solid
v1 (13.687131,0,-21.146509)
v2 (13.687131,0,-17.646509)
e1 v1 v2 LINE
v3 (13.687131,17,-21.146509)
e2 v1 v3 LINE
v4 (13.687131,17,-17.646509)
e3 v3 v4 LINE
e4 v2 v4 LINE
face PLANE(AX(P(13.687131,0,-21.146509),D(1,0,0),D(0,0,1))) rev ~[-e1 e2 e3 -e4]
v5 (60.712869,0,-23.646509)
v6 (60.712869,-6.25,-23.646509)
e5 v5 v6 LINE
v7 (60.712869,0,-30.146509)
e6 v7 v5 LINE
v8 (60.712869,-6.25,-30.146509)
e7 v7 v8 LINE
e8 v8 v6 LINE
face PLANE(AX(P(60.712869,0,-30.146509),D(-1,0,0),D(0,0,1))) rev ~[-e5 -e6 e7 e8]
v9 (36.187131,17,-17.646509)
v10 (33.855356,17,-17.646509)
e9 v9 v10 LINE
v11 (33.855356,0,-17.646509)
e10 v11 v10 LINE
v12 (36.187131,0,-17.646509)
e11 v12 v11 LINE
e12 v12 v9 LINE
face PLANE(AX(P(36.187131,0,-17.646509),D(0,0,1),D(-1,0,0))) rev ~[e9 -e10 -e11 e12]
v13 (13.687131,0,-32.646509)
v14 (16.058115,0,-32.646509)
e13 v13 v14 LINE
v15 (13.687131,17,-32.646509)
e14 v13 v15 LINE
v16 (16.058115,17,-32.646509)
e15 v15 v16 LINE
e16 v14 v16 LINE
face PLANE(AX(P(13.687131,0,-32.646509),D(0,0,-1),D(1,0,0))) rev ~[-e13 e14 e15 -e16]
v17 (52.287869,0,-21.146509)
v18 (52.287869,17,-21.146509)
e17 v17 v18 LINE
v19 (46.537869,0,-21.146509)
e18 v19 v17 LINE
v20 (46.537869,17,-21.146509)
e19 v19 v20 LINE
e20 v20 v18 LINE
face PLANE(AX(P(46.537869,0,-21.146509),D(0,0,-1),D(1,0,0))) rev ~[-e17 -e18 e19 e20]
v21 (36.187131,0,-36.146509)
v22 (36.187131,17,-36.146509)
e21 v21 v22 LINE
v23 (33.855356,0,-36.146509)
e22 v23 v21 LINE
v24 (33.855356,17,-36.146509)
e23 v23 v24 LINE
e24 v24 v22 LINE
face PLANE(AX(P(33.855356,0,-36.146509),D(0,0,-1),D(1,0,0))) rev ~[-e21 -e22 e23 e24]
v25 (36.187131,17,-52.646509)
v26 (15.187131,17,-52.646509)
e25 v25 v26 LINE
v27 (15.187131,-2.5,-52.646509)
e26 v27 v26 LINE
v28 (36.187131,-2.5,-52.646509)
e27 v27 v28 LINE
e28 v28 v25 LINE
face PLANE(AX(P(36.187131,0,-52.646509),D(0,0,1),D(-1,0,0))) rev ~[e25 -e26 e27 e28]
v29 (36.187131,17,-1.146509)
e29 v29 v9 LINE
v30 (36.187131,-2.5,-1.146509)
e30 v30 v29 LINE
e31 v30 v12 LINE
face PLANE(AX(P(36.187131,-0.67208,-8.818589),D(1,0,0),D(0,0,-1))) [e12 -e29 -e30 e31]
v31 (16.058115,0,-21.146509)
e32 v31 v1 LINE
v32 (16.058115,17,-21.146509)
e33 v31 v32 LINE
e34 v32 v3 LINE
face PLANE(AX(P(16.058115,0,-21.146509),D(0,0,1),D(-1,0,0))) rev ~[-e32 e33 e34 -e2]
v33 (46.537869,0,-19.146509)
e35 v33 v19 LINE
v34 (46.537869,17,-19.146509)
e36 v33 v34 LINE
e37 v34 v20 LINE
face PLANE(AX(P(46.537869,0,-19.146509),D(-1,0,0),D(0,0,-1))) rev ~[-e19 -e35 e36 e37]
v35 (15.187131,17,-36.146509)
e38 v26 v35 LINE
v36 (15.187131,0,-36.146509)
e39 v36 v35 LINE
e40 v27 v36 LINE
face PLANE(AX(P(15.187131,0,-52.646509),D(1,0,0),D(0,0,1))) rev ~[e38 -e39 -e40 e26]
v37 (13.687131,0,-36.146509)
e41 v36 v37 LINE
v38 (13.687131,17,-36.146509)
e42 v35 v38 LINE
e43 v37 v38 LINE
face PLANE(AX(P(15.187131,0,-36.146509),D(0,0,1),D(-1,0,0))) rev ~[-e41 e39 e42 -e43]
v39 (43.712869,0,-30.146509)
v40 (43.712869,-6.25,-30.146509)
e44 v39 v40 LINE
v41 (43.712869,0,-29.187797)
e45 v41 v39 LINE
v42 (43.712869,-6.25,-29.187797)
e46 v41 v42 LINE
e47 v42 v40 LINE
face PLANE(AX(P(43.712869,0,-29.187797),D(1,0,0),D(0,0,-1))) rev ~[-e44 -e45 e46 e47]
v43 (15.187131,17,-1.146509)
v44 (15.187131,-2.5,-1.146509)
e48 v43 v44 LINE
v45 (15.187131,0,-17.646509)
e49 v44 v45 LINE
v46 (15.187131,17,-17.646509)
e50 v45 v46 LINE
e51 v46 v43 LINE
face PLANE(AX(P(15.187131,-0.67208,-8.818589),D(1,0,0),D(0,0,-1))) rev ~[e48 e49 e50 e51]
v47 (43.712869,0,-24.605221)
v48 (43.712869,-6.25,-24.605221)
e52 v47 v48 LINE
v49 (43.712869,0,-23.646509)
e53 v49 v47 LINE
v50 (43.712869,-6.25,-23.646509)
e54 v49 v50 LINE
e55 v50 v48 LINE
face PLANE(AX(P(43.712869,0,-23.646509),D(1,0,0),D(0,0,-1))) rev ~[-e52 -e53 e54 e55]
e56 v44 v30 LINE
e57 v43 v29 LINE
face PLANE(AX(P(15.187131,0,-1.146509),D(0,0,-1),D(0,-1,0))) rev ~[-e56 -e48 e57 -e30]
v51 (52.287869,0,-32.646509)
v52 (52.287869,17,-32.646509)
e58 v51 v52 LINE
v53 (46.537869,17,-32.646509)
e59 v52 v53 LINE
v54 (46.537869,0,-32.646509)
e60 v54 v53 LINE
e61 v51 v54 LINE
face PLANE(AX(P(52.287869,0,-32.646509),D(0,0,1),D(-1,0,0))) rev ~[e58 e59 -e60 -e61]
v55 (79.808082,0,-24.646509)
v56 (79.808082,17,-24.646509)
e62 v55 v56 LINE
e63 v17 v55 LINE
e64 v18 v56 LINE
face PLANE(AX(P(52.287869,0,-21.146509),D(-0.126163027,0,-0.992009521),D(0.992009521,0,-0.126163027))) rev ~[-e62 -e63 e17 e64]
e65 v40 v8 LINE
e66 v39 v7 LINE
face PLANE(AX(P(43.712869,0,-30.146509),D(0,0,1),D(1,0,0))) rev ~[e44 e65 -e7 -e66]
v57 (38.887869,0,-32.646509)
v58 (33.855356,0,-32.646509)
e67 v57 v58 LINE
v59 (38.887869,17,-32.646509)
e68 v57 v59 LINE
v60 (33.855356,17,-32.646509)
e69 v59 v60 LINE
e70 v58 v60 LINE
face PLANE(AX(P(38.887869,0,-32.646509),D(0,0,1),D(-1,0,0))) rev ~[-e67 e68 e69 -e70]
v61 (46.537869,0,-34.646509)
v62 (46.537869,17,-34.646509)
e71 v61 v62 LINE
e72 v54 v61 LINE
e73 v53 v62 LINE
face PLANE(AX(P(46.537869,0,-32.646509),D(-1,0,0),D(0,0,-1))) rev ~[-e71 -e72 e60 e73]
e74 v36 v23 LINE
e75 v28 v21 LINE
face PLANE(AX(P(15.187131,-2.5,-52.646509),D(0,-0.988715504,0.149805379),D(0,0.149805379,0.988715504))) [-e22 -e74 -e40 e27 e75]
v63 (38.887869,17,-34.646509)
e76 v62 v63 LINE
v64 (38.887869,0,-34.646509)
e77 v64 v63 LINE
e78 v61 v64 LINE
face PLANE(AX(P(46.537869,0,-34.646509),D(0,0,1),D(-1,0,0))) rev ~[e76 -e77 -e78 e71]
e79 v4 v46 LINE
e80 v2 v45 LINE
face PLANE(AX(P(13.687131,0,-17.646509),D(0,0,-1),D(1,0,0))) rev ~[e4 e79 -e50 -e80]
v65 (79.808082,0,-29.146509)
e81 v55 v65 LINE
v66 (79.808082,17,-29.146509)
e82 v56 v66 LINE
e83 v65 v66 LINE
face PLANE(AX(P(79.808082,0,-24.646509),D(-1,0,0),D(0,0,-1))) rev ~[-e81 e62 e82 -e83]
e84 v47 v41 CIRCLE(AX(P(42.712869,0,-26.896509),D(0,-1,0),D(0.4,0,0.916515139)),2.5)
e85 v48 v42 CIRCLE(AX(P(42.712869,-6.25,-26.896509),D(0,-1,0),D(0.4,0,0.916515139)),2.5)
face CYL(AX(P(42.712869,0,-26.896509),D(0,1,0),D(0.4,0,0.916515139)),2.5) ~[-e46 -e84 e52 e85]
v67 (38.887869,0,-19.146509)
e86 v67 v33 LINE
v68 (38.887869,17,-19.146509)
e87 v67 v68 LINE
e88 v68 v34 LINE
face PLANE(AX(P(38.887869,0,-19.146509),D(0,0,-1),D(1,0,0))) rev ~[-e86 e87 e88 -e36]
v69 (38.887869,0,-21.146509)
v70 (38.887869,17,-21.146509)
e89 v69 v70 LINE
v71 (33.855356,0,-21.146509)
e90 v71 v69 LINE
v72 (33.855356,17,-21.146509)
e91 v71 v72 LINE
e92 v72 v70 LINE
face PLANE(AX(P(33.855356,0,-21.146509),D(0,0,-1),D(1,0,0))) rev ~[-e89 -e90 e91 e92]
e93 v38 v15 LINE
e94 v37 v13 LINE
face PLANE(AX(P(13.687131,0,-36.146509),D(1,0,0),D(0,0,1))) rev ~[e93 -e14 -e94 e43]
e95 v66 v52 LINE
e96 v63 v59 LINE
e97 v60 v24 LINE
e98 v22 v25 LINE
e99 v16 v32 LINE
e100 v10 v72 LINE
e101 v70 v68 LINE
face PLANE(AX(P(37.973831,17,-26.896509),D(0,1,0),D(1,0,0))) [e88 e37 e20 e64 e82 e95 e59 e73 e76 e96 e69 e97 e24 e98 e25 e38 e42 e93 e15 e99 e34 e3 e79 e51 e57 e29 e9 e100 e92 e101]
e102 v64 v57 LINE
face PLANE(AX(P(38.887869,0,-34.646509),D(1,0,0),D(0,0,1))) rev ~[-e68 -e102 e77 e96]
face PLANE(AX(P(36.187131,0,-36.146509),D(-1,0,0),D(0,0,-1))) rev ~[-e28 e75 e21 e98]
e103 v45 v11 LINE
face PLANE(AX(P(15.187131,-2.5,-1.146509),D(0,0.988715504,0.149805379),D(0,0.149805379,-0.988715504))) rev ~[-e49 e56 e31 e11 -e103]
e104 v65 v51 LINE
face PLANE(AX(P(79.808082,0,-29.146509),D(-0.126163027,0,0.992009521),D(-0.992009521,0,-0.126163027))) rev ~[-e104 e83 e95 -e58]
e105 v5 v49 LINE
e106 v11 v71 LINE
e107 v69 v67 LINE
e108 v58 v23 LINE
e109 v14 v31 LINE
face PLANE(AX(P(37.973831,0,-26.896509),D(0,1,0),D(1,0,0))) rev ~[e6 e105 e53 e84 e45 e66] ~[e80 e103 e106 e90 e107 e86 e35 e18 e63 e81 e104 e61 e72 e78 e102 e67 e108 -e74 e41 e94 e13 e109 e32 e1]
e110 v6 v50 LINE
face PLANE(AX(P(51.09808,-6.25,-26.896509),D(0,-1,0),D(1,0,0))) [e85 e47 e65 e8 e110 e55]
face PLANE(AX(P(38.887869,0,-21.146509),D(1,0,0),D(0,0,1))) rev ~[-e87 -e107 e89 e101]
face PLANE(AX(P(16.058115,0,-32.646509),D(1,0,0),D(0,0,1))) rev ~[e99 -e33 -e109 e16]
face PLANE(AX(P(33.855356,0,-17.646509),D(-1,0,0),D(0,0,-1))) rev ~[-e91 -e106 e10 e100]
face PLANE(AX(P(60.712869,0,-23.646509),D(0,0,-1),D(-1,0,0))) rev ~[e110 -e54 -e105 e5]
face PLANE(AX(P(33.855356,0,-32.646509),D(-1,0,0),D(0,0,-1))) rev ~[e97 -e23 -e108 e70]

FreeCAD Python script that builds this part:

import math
import FreeCAD as App
import Part
import Sketcher
from FreeCAD import Vector
Q = App.Units.Quantity

doc = App.newDocument("Part")
body = doc.addObject("PartDesign::Body", "Body")

# Sketch on XZ plane
sketch1 = doc.addObject("Sketcher::SketchObject", "Sketch")
body.addObject(sketch1)
sketch1.AttachmentSupport = (doc.XZ_Plane, [""])
sketch1.MapMode = "FlatFace"
sketch1.addGeometry(Part.LineSegment(Vector(38.887869, -32.646509, 0), Vector(33.855356, -32.646509, 0)), False)
sketch1.addGeometry(Part.LineSegment(Vector(33.855356, -32.646509, 0), Vector(33.855356, -36.146509, 0)), False)
sketch1.addGeometry(Part.LineSegment(Vector(33.855356, -36.146509, 0), Vector(36.187131, -36.146509, 0)), False)
sketch1.addGeometry(Part.LineSegment(Vector(36.187131, -36.146509, 0), Vector(36.187131, -52.646509, 0)), False)
sketch1.addGeometry(Part.LineSegment(Vector(36.187131, -52.646509, 0), Vector(15.187131, -52.646509, 0)), False)
sketch1.addGeometry(Part.LineSegment(Vector(15.187131, -52.646509, 0), Vector(15.187131, -36.146509, 0)), False)
sketch1.addGeometry(Part.LineSegment(Vector(15.187131, -36.146509, 0), Vector(13.687131, -36.146509, 0)), False)
sketch1.addGeometry(Part.LineSegment(Vector(13.687131, -36.146509, 0), Vector(13.687131, -32.646509, 0)), False)
sketch1.addGeometry(Part.LineSegment(Vector(13.687131, -32.646509, 0), Vector(16.058115, -32.646509, 0)), False)
sketch1.addGeometry(Part.LineSegment(Vector(16.058115, -32.646509, 0), Vector(16.058115, -21.146509, 0)), False)
sketch1.addGeometry(Part.LineSegment(Vector(16.058115, -21.146509, 0), Vector(13.687131, -21.146509, 0)), False)
sketch1.addGeometry(Part.LineSegment(Vector(13.687131, -21.146509, 0), Vector(13.687131, -17.646509, 0)), False)
sketch1.addGeometry(Part.LineSegment(Vector(13.687131, -17.646509, 0), Vector(15.187131, -17.646509, 0)), False)
sketch1.addGeometry(Part.LineSegment(Vector(15.187131, -17.646509, 0), Vector(15.187131, -1.146509, 0)), False)
sketch1.addGeometry(Part.LineSegment(Vector(15.187131, -1.146509, 0), Vector(36.187131, -1.146509, 0)), False)
sketch1.addGeometry(Part.LineSegment(Vector(36.187131, -1.146509, 0), Vector(36.187131, -17.646509, 0)), False)
sketch1.addGeometry(Part.LineSegment(Vector(36.187131, -17.646509, 0), Vector(33.855356, -17.646509, 0)), False)
sketch1.addGeometry(Part.LineSegment(Vector(33.855356, -17.646509, 0), Vector(33.855356, -21.146509, 0)), False)
sketch1.addGeometry(Part.LineSegment(Vector(33.855356, -21.146509, 0), Vector(38.887869, -21.146509, 0)), False)
sketch1.addGeometry(Part.LineSegment(Vector(38.887869, -21.146509, 0), Vector(38.887869, -19.146509, 0)), False)
sketch1.addGeometry(Part.LineSegment(Vector(38.887869, -19.146509, 0), Vector(46.537869, -19.146509, 0)), False)
sketch1.addGeometry(Part.LineSegment(Vector(46.537869, -19.146509, 0), Vector(46.537869, -21.146509, 0)), False)
sketch1.addGeometry(Part.LineSegment(Vector(46.537869, -21.146509, 0), Vector(52.287869, -21.146509, 0)), False)
sketch1.addGeometry(Part.LineSegment(Vector(52.287869, -21.146509, 0), Vector(79.808082, -24.646509, 0)), False)
sketch1.addGeometry(Part.LineSegment(Vector(79.808082, -24.646509, 0), Vector(79.808082, -29.146509, 0)), False)
sketch1.addGeometry(Part.LineSegment(Vector(79.808082, -29.146509, 0), Vector(52.287869, -32.646509, 0)), False)
sketch1.addGeometry(Part.LineSegment(Vector(52.287869, -32.646509, 0), Vector(46.537869, -32.646509, 0)), False)
sketch1.addGeometry(Part.LineSegment(Vector(46.537869, -32.646509, 0), Vector(46.537869, -34.646509, 0)), False)
sketch1.addGeometry(Part.LineSegment(Vector(46.537869, -34.646509, 0), Vector(38.887869, -34.646509, 0)), False)
sketch1.addGeometry(Part.LineSegment(Vector(38.887869, -34.646509, 0), Vector(38.887869, -32.646509, 0)), False)
sketch1.addConstraint(Sketcher.Constraint("Coincident", 0, 2, 1, 1))
sketch1.addConstraint(Sketcher.Constraint("Coincident", 1, 2, 2, 1))
sketch1.addConstraint(Sketcher.Constraint("Coincident", 2, 2, 3, 1))
sketch1.addConstraint(Sketcher.Constraint("Coincident", 3, 2, 4, 1))
sketch1.addConstraint(Sketcher.Constraint("Coincident", 4, 2, 5, 1))
sketch1.addConstraint(Sketcher.Constraint("Coincident", 5, 2, 6, 1))
sketch1.addConstraint(Sketcher.Constraint("Coincident", 6, 2, 7, 1))
sketch1.addConstraint(Sketcher.Constraint("Coincident", 7, 2, 8, 1))
sketch1.addConstraint(Sketcher.Constraint("Coincident", 8, 2, 9, 1))
sketch1.addConstraint(Sketcher.Constraint("Coincident", 9, 2, 10, 1))
sketch1.addConstraint(Sketcher.Constraint("Coincident", 10, 2, 11, 1))
sketch1.addConstraint(Sketcher.Constraint("Coincident", 11, 2, 12, 1))
sketch1.addConstraint(Sketcher.Constraint("Coincident", 12, 2, 13, 1))
sketch1.addConstraint(Sketcher.Constraint("Coincident", 13, 2, 14, 1))
sketch1.addConstraint(Sketcher.Constraint("Coincident", 14, 2, 15, 1))
sketch1.addConstraint(Sketcher.Constraint("Coincident", 15, 2, 16, 1))
sketch1.addConstraint(Sketcher.Constraint("Coincident", 16, 2, 17, 1))
sketch1.addConstraint(Sketcher.Constraint("Coincident", 17, 2, 18, 1))
sketch1.addConstraint(Sketcher.Constraint("Coincident", 18, 2, 19, 1))
sketch1.addConstraint(Sketcher.Constraint("Coincident", 19, 2, 20, 1))
sketch1.addConstraint(Sketcher.Constraint("Coincident", 20, 2, 21, 1))
sketch1.addConstraint(Sketcher.Constraint("Coincident", 21, 2, 22, 1))
sketch1.addConstraint(Sketcher.Constraint("Coincident", 22, 2, 23, 1))
sketch1.addConstraint(Sketcher.Constraint("Coincident", 23, 2, 24, 1))
sketch1.addConstraint(Sketcher.Constraint("Coincident", 24, 2, 25, 1))
sketch1.addConstraint(Sketcher.Constraint("Coincident", 25, 2, 26, 1))
sketch1.addConstraint(Sketcher.Constraint("Coincident", 26, 2, 27, 1))
sketch1.addConstraint(Sketcher.Constraint("Coincident", 27, 2, 28, 1))
sketch1.addConstraint(Sketcher.Constraint("Coincident", 28, 2, 29, 1))
sketch1.addConstraint(Sketcher.Constraint("Coincident", 29, 2, 0, 1))
sketch1.addConstraint(Sketcher.Constraint("Horizontal", 0))
sketch1.addConstraint(Sketcher.Constraint("Vertical", 1))
sketch1.addConstraint(Sketcher.Constraint("Horizontal", 2))
sketch1.addConstraint(Sketcher.Constraint("Vertical", 3))
sketch1.addConstraint(Sketcher.Constraint("Horizontal", 4))
sketch1.addConstraint(Sketcher.Constraint("Vertical", 5))
sketch1.addConstraint(Sketcher.Constraint("Horizontal", 6))
sketch1.addConstraint(Sketcher.Constraint("Vertical", 7))
sketch1.addConstraint(Sketcher.Constraint("Horizontal", 8))
sketch1.addConstraint(Sketcher.Constraint("Vertical", 9))
sketch1.addConstraint(Sketcher.Constraint("Horizontal", 10))
sketch1.addConstraint(Sketcher.Constraint("Vertical", 11))
sketch1.addConstraint(Sketcher.Constraint("Horizontal", 12))
sketch1.addConstraint(Sketcher.Constraint("Vertical", 13))
sketch1.addConstraint(Sketcher.Constraint("Horizontal", 14))
sketch1.addConstraint(Sketcher.Constraint("Vertical", 15))
sketch1.addConstraint(Sketcher.Constraint("Horizontal", 16))
sketch1.addConstraint(Sketcher.Constraint("Vertical", 17))
sketch1.addConstraint(Sketcher.Constraint("Horizontal", 18))
sketch1.addConstraint(Sketcher.Constraint("Vertical", 19))
sketch1.addConstraint(Sketcher.Constraint("Horizontal", 20))
sketch1.addConstraint(Sketcher.Constraint("Vertical", 21))
sketch1.addConstraint(Sketcher.Constraint("Horizontal", 22))
sketch1.addConstraint(Sketcher.Constraint("Vertical", 24))
sketch1.addConstraint(Sketcher.Constraint("Horizontal", 26))
sketch1.addConstraint(Sketcher.Constraint("Vertical", 27))
sketch1.addConstraint(Sketcher.Constraint("Horizontal", 28))
sketch1.addConstraint(Sketcher.Constraint("Vertical", 29))
sketch1.addConstraint(Sketcher.Constraint("Horizontal", 2, 2, 5, 2))
sketch1.addConstraint(Sketcher.Constraint("Horizontal", 0, 2, 7, 2))
sketch1.addConstraint(Sketcher.Constraint("Horizontal", 12, 2, 15, 2))
sketch1.addConstraint(Sketcher.Constraint("Horizontal", 10, 2, 17, 2))
sketch1.addConstraint(Sketcher.Constraint("Horizontal", 18, 2, 21, 2))
sketch1.addConstraint(Sketcher.Constraint("Horizontal", 8, 2, 25, 2))
sketch1.addConstraint(Sketcher.Constraint("Vertical", 7, 2, 10, 2))
sketch1.addConstraint(Sketcher.Constraint("Vertical", 5, 2, 12, 2))
sketch1.addConstraint(Sketcher.Constraint("Vertical", 3, 2, 14, 2))
sketch1.addConstraint(Sketcher.Constraint("Vertical", 1, 2, 16, 2))
sketch1.addConstraint(Sketcher.Constraint("Vertical", 22, 2, 25, 2))
sketch1.addConstraint(Sketcher.Constraint("Vertical", 21, 2, 26, 2))
sketch1.addConstraint(Sketcher.Constraint("Vertical", 19, 2, 28, 2))
sketch1.addConstraint(Sketcher.Constraint("Equal", 7, 11))
sketch1.addConstraint(Sketcher.Constraint("Equal", 5, 13))
sketch1.addConstraint(Sketcher.Constraint("Equal", 21, 27))
sketch1.addConstraint(Sketcher.Constraint("Equal", 23, 25))
sketch1.addConstraint(Sketcher.Constraint("DistanceX", 4, 2, 4, 1, Q("21 mm")))
sketch1.addConstraint(Sketcher.Constraint("DistanceY", 19, 1, 19, 2, Q("2 mm")))
sketch1.addConstraint(Sketcher.Constraint("DistanceX", 6, 2, 6, 1, Q("1.5 mm")))
sketch1.addConstraint(Sketcher.Constraint("DistanceY", 1, 2, 1, 1, Q("3.5 mm")))
sketch1.addConstraint(Sketcher.Constraint("DistanceY", 3, 2, 3, 1, Q("16.5 mm")))
sketch1.addConstraint(Sketcher.Constraint("DistanceY", 9, 1, 9, 2, Q("11.5 mm")))
sketch1.addConstraint(Sketcher.Constraint("DistanceY", 24, 2, 24, 1, Q("4.5 mm")))
sketch1.addConstraint(Sketcher.Constraint("DistanceX", 20, 1, 20, 2, Q("7.65 mm")))
sketch1.addConstraint(Sketcher.Constraint("DistanceX", 22, 1, 22, 2, Q("5.75 mm")))
sketch1.addConstraint(Sketcher.Constraint("DistanceX", 0, 2, 0, 1, Q("5.032513 mm")))
sketch1.addConstraint(Sketcher.Constraint("DistanceX", 2, 1, 2, 2, Q("2.331774 mm")))
sketch1.addConstraint(Sketcher.Constraint("DistanceX", 8, 1, 8, 2, Q("2.370985 mm")))
sketch1.addConstraint(Sketcher.Constraint("DistanceY", 0, 2, -1, 1, Q("32.646509 mm")))
sketch1.addConstraint(Sketcher.Constraint("DistanceX", -1, 1, 2, 2, Q("36.187131 mm")))
sketch1.addConstraint(Sketcher.Constraint("DistanceX", -1, 1, 23, 2, Q("79.808082 mm")))
pad1 = doc.addObject("PartDesign::Pad", "Pad")
body.addObject(pad1)
pad1.Profile = sketch1
pad1.Length = 17
pad1.Reversed = True

# Sketch on XZ plane
sketch2 = doc.addObject("Sketcher::SketchObject", "Sketch001")
body.addObject(sketch2)
sketch2.AttachmentSupport = (doc.XZ_Plane, [""])
sketch2.MapMode = "FlatFace"
sketch2.addGeometry(Part.LineSegment(Vector(43.712869, -29.187797, 0), Vector(43.712869, -30.146509, 0)), False)
sketch2.addGeometry(Part.LineSegment(Vector(43.712869, -30.146509, 0), Vector(60.712869, -30.146509, 0)), False)
sketch2.addGeometry(Part.LineSegment(Vector(60.712869, -30.146509, 0), Vector(60.712869, -23.646509, 0)), False)
sketch2.addGeometry(Part.LineSegment(Vector(60.712869, -23.646509, 0), Vector(43.712869, -23.646509, 0)), False)
sketch2.addGeometry(Part.LineSegment(Vector(43.712869, -23.646509, 0), Vector(43.712869, -24.605221, 0)), False)
sketch2.addGeometry(Part.ArcOfCircle(Part.Circle(Vector(42.712869, -26.896509, 0), Vector(0, 0, 1), 2.5), math.radians(66.421822), math.radians(293.578178)), False)
sketch2.addConstraint(Sketcher.Constraint("Coincident", 0, 2, 1, 1))
sketch2.addConstraint(Sketcher.Constraint("Coincident", 1, 2, 2, 1))
sketch2.addConstraint(Sketcher.Constraint("Coincident", 2, 2, 3, 1))
sketch2.addConstraint(Sketcher.Constraint("Coincident", 3, 2, 4, 1))
sketch2.addConstraint(Sketcher.Constraint("Coincident", 4, 2, 5, 1))
sketch2.addConstraint(Sketcher.Constraint("Coincident", 5, 2, 0, 1))
sketch2.addConstraint(Sketcher.Constraint("Vertical", 0))
sketch2.addConstraint(Sketcher.Constraint("Horizontal", 1))
sketch2.addConstraint(Sketcher.Constraint("Vertical", 2))
sketch2.addConstraint(Sketcher.Constraint("Horizontal", 3))
sketch2.addConstraint(Sketcher.Constraint("Vertical", 4))
sketch2.addConstraint(Sketcher.Constraint("Vertical", 0, 2, 3, 2))
sketch2.addConstraint(Sketcher.Constraint("Equal", 0, 4))
sketch2.addConstraint(Sketcher.Constraint("Radius", 5, Q("2.5 mm")))
sketch2.addConstraint(Sketcher.Constraint("DistanceX", 1, 1, 1, 2, Q("17 mm")))
sketch2.addConstraint(Sketcher.Constraint("DistanceY", 2, 1, 2, 2, Q("6.5 mm")))
sketch2.addConstraint(Sketcher.Constraint("DistanceX", 5, 3, 0, 2, Q("1 mm")))
sketch2.addConstraint(Sketcher.Constraint("DistanceX", -1, 1, 5, 3, Q("42.712869 mm")))
sketch2.addConstraint(Sketcher.Constraint("DistanceY", 5, 3, -1, 1, Q("26.896509 mm")))
pad2 = doc.addObject("PartDesign::Pad", "Pad001")
body.addObject(pad2)
pad2.Profile = sketch2
pad2.Length = 6.25

# Sketch on YZ plane
sketch3 = doc.addObject("Sketcher::SketchObject", "Sketch002")
body.addObject(sketch3)
sketch3.AttachmentSupport = (doc.YZ_Plane, [""])
sketch3.MapMode = "FlatFace"
sketch3.AttachmentOffset = App.Placement(Vector(0, 0, 15.187131), App.Rotation())
sketch3.addGeometry(Part.LineSegment(Vector(-2.5, -1.146509, 0), Vector(0, -1.146509, 0)), False)
sketch3.addGeometry(Part.LineSegment(Vector(0, -1.146509, 0), Vector(0, -17.646509, 0)), False)
sketch3.addGeometry(Part.LineSegment(Vector(0, -17.646509, 0), Vector(-2.5, -1.146509, 0)), False)
sketch3.addGeometry(Part.LineSegment(Vector(0, -36.146509, 0), Vector(0, -52.646509, 0)), False)
sketch3.addGeometry(Part.LineSegment(Vector(0, -52.646509, 0), Vector(-2.5, -52.646509, 0)), False)
sketch3.addGeometry(Part.LineSegment(Vector(-2.5, -52.646509, 0), Vector(0, -36.146509, 0)), False)
sketch3.addConstraint(Sketcher.Constraint("Coincident", 0, 2, 1, 1))
sketch3.addConstraint(Sketcher.Constraint("Coincident", 1, 2, 2, 1))
sketch3.addConstraint(Sketcher.Constraint("Coincident", 2, 2, 0, 1))
sketch3.addConstraint(Sketcher.Constraint("Coincident", 3, 2, 4, 1))
sketch3.addConstraint(Sketcher.Constraint("Coincident", 4, 2, 5, 1))
sketch3.addConstraint(Sketcher.Constraint("Coincident", 5, 2, 3, 1))
sketch3.addConstraint(Sketcher.Constraint("Horizontal", 0))
sketch3.addConstraint(Sketcher.Constraint("Vertical", 1))
sketch3.addConstraint(Sketcher.Constraint("Vertical", 3))
sketch3.addConstraint(Sketcher.Constraint("Horizontal", 4))
sketch3.addConstraint(Sketcher.Constraint("PointOnObject", 0, 2, -2))
sketch3.addConstraint(Sketcher.Constraint("PointOnObject", 3, 2, -2))
sketch3.addConstraint(Sketcher.Constraint("Vertical", 2, 2, 4, 2))
sketch3.addConstraint(Sketcher.Constraint("Equal", 1, 3))
sketch3.addConstraint(Sketcher.Constraint("DistanceX", 0, 1, 0, 2, Q("2.5 mm")))
sketch3.addConstraint(Sketcher.Constraint("DistanceY", 1, 2, 1, 1, Q("16.5 mm")))
sketch3.addConstraint(Sketcher.Constraint("DistanceY", 3, 2, 1, 2, Q("35 mm")))
sketch3.addConstraint(Sketcher.Constraint("DistanceY", 0, 2, -1, 1, Q("1.146509 mm")))
pad3 = doc.addObject("PartDesign::Pad", "Pad002")
body.addObject(pad3)
pad3.Profile = sketch3
pad3.Length = 21

doc.recompute()
